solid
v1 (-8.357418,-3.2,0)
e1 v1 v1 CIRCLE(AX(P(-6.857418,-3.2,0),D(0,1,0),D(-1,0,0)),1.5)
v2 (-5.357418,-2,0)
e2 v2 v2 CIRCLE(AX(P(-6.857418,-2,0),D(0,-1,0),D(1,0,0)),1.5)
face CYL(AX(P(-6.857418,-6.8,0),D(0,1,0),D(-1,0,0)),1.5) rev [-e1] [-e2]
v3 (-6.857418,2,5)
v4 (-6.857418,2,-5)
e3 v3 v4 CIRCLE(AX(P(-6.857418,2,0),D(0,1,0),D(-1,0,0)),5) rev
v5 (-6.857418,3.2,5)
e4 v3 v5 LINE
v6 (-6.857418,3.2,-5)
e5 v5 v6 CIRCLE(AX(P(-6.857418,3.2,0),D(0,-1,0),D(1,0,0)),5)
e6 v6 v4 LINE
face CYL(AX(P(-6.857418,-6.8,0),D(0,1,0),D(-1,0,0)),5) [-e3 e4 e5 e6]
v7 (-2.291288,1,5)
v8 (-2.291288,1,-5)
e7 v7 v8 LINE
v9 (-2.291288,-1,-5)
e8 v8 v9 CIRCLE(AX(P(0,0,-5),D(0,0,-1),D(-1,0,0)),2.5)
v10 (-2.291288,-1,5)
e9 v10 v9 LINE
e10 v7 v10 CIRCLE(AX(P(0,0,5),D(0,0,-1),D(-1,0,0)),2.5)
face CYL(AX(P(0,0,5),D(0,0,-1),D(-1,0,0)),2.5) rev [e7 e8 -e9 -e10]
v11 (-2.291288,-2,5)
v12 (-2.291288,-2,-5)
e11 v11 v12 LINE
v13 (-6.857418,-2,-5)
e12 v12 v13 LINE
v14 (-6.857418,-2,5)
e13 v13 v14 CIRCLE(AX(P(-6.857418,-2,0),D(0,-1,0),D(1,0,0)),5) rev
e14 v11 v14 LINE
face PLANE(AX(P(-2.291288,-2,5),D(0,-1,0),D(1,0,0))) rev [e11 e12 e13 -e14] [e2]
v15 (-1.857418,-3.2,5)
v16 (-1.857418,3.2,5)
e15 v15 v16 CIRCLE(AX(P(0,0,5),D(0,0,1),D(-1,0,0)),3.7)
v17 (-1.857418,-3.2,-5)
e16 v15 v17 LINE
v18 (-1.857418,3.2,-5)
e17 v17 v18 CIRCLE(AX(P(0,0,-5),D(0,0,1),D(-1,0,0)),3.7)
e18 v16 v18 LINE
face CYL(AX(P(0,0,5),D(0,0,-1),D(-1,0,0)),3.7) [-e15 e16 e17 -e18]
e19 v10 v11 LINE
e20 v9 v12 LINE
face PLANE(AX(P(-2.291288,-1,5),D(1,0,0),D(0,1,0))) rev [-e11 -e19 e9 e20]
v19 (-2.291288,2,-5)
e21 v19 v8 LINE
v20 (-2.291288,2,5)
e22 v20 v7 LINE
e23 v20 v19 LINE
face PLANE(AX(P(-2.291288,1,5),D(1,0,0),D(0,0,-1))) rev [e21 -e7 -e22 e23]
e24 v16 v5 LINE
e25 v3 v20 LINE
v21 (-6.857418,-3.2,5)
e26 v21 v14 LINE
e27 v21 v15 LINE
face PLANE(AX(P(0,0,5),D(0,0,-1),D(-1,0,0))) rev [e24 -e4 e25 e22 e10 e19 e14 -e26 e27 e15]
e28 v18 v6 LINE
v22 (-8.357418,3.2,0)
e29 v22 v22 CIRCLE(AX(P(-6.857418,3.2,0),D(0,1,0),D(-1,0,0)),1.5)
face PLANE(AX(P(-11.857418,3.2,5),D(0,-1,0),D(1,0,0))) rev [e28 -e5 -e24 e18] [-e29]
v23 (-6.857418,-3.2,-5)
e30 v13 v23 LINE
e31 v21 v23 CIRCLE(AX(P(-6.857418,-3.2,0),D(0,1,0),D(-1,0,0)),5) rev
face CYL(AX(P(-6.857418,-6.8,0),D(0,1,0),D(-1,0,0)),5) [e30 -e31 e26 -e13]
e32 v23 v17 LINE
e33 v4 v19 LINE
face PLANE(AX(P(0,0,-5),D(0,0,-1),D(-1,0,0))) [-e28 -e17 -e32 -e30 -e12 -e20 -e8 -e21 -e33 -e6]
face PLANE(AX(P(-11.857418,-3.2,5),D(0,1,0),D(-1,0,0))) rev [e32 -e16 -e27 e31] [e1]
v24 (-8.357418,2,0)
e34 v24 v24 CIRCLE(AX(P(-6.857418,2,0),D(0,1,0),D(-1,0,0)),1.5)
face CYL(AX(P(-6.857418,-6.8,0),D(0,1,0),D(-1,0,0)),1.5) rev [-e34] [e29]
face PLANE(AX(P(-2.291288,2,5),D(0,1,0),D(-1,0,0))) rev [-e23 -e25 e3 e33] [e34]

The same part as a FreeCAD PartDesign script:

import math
import FreeCAD as App
import Part
import Sketcher

V = App.Vector
Q = App.Units.Quantity

doc = App.newDocument("Part")
body = doc.addObject("PartDesign::Body", "Body")

sketch1 = body.newObject("Sketcher::SketchObject", "Sketch")
sketch1.AttachmentSupport = (doc.getObject("XY_Plane"), [""])
sketch1.MapMode = "FlatFace"
sketch1.addGeometry(Part.LineSegment(V(-11.9, 3.2, 0), V(-11.9, 2, 0)), False)
sketch1.addGeometry(Part.LineSegment(V(-11.9, 2, 0), V(-2.3, 2, 0)), False)
sketch1.addGeometry(Part.LineSegment(V(-2.3, 2, 0), V(-2.3, 1, 0)), False)
sketch1.addGeometry(Part.ArcOfCircle(Part.Circle(V(0, 0, 0), V(0, 0, 1), 2.5), math.radians(-156), math.radians(156)), False)
sketch1.addGeometry(Part.LineSegment(V(-2.3, -1, 0), V(-2.3, -2, 0)), False)
sketch1.addGeometry(Part.LineSegment(V(-2.3, -2, 0), V(-11.9, -2, 0)), False)
sketch1.addGeometry(Part.LineSegment(V(-11.9, -2, 0), V(-11.9, -3.2, 0)), False)
sketch1.addGeometry(Part.LineSegment(V(-11.9, -3.2, 0), V(-1.9, -3.2, 0)), False)
sketch1.addGeometry(Part.ArcOfCircle(Part.Circle(V(0, 0, 0), V(0, 0, 1), 3.7), math.radians(-120), math.radians(120)), False)
sketch1.addGeometry(Part.LineSegment(V(-1.9, 3.2, 0), V(-11.9, 3.2, 0)), False)
sketch1.addConstraint(Sketcher.Constraint("Coincident", 0, 2, 1, 1))
sketch1.addConstraint(Sketcher.Constraint("Coincident", 1, 2, 2, 1))
sketch1.addConstraint(Sketcher.Constraint("Coincident", 2, 2, 3, 2))
sketch1.addConstraint(Sketcher.Constraint("Coincident", 3, 1, 4, 1))
sketch1.addConstraint(Sketcher.Constraint("Coincident", 4, 2, 5, 1))
sketch1.addConstraint(Sketcher.Constraint("Coincident", 5, 2, 6, 1))
sketch1.addConstraint(Sketcher.Constraint("Coincident", 6, 2, 7, 1))
sketch1.addConstraint(Sketcher.Constraint("Coincident", 7, 2, 8, 1))
sketch1.addConstraint(Sketcher.Constraint("Coincident", 8, 2, 9, 1))
sketch1.addConstraint(Sketcher.Constraint("Coincident", 9, 2, 0, 1))
sketch1.addConstraint(Sketcher.Constraint("Vertical", 0))
sketch1.addConstraint(Sketcher.Constraint("Horizontal", 1))
sketch1.addConstraint(Sketcher.Constraint("Vertical", 2))
sketch1.addConstraint(Sketcher.Constraint("Vertical", 4))
sketch1.addConstraint(Sketcher.Constraint("Horizontal", 5))
sketch1.addConstraint(Sketcher.Constraint("Vertical", 6))
sketch1.addConstraint(Sketcher.Constraint("Horizontal", 7))
sketch1.addConstraint(Sketcher.Constraint("Horizontal", 9))
sketch1.addConstraint(Sketcher.Constraint("Coincident", 3, 3, -1, 1))
sketch1.addConstraint(Sketcher.Constraint("Coincident", 8, 3, -1, 1))
sketch1.addConstraint(Sketcher.Constraint("Symmetric", 1, 2, 4, 2, -1))
sketch1.addConstraint(Sketcher.Constraint("Symmetric", 6, 2, 9, 2, -1))
sketch1.addConstraint(Sketcher.Constraint("Radius", 3, Q("2.5 mm")))
sketch1.addConstraint(Sketcher.Constraint("Radius", 8, Q("3.7 mm")))
sketch1.addConstraint(Sketcher.Constraint("DistanceX", 7, 1, 7, 2, Q("10 mm")))
sketch1.addConstraint(Sketcher.Constraint("DistanceY", 2, 2, 2, 1, Q("1 mm")))
sketch1.addConstraint(Sketcher.Constraint("DistanceY", 0, 2, 0, 1, Q("1.2 mm")))
sketch1.addConstraint(Sketcher.Constraint("DistanceY", -1, 1, 0, 2, Q("2 mm")))
pad1 = body.newObject("PartDesign::Pad", "Pad")
pad1.Profile = sketch1
pad1.Length = 10
pad1.Midplane = True

sketch2 = body.newObject("Sketcher::SketchObject", "Sketch001")
sketch2.AttachmentSupport = (doc.getObject("XZ_Plane"), [""])
sketch2.MapMode = "FlatFace"
sketch2.AttachmentOffset = App.Placement(V(0, 0, -3.2), App.Rotation())
sketch2.addGeometry(Part.Circle(V(-6.9, 0, 0), V(0, 0, 1), 1.5), False)
sketch2.addGeometry(Part.LineSegment(V(-6.9, -5, 0), V(-12.9, -5, 0)), False)
sketch2.addGeometry(Part.LineSegment(V(-12.9, -5, 0), V(-12.9, 5, 0)), False)
sketch2.addGeometry(Part.LineSegment(V(-12.9, 5, 0), V(-6.9, 5, 0)), False)
sketch2.addGeometry(Part.ArcOfCircle(Part.Circle(V(-6.9, 0, 0), V(0, 0, 1), 5), math.radians(90), math.radians(270)), False)
sketch2.addConstraint(Sketcher.Constraint("Coincident", 1, 2, 2, 1))
sketch2.addConstraint(Sketcher.Constraint("Coincident", 2, 2, 3, 1))
sketch2.addConstraint(Sketcher.Constraint("Tangent", 3, 2, 4, 1))
sketch2.addConstraint(Sketcher.Constraint("Tangent", 4, 2, 1, 1))
sketch2.addConstraint(Sketcher.Constraint("Horizontal", 1))
sketch2.addConstraint(Sketcher.Constraint("Vertical", 2))
sketch2.addConstraint(Sketcher.Constraint("Horizontal", 3))
sketch2.addConstraint(Sketcher.Constraint("Coincident", 4, 3, 0, 3))
sketch2.addConstraint(Sketcher.Constraint("PointOnObject", 0, 3, -1))
sketch2.addConstraint(Sketcher.Constraint("Diameter", 0, Q("3 mm")))
sketch2.addConstraint(Sketcher.Constraint("Radius", 4, Q("5 mm")))
sketch2.addConstraint(Sketcher.Constraint("DistanceX", 1, 2, 1, 1, Q("6 mm")))
sketch2.addConstraint(Sketcher.Constraint("DistanceX", 0, 3, -1, 1, Q("6.857418 mm")))
pocket1 = body.newObject("PartDesign::Pocket", "Pocket")
pocket1.Profile = sketch2
pocket1.Length = 10
pocket1.Reversed = True

doc.recompute()
